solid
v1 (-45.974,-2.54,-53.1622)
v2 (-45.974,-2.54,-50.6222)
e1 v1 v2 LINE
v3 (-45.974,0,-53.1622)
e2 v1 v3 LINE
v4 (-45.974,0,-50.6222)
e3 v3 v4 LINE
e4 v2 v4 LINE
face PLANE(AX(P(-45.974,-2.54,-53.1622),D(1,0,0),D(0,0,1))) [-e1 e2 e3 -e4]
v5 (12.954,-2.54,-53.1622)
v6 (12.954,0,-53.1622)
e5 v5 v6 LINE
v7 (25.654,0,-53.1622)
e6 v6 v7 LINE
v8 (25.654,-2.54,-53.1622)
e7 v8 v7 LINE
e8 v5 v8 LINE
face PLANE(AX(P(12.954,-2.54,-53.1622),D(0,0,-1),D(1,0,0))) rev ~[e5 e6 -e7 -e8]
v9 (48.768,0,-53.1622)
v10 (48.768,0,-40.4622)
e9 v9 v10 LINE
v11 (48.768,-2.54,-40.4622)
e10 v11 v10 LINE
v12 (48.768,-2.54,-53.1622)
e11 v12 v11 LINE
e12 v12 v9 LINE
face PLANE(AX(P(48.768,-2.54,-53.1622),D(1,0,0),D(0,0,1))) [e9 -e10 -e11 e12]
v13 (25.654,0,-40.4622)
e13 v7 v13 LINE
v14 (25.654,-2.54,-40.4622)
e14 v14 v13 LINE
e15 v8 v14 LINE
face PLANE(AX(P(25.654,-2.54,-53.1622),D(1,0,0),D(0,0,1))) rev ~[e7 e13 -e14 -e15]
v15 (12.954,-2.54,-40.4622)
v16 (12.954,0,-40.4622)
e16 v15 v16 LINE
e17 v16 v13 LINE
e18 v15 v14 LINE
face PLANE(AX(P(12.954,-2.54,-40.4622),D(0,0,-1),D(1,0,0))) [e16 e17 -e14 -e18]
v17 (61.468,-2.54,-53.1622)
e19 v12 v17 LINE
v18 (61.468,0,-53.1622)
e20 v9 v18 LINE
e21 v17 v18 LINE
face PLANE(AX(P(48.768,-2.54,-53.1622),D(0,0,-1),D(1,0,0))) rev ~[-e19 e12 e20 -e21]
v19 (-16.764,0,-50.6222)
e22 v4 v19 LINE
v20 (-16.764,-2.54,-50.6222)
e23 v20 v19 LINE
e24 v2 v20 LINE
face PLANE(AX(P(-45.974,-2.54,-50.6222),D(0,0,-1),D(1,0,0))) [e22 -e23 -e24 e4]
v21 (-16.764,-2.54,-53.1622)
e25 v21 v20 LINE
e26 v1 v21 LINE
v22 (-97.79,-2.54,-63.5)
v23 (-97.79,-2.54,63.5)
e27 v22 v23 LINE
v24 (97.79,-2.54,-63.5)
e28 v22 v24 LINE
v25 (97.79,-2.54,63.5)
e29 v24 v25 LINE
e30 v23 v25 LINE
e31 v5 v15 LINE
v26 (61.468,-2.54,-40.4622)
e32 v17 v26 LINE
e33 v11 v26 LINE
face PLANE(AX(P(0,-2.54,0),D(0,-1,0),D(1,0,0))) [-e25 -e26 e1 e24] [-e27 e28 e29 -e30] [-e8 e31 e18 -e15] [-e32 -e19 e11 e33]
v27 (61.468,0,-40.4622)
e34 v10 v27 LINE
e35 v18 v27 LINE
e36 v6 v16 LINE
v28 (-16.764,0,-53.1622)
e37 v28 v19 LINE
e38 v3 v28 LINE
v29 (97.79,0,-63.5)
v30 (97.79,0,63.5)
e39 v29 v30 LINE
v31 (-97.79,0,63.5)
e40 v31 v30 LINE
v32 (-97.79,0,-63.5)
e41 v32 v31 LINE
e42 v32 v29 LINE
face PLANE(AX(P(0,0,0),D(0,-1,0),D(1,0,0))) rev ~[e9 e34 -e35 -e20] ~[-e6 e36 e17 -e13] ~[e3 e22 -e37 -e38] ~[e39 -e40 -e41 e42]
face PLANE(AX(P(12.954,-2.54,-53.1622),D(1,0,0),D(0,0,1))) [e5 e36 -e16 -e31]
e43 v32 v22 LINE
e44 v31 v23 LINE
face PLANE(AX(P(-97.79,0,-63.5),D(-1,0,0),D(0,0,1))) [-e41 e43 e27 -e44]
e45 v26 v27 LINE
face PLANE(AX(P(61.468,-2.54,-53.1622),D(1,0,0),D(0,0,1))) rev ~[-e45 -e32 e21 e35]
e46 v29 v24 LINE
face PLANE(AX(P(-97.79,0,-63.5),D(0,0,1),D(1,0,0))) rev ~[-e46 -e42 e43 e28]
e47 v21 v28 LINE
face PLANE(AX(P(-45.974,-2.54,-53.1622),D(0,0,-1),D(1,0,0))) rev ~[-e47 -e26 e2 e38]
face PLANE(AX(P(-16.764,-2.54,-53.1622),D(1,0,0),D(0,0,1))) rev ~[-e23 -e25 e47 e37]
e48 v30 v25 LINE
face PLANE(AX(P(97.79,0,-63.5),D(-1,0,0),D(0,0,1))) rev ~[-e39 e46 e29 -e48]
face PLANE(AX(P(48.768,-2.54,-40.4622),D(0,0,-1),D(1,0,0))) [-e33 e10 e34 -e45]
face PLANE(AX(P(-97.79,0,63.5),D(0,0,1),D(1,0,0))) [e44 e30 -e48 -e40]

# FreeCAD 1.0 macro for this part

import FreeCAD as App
import Part
import Sketcher
Q = App.Units.Quantity


def add_polygon(sketch, points):
    """Adds a closed chain of lines whose ends are joined by coincident constraints."""
    first, n = sketch.GeometryCount, len(points)
    for a, b in zip(points, points[1:] + points[:1]):
        sketch.addGeometry(Part.LineSegment(App.Vector(*a, 0), App.Vector(*b, 0)), False)
    for i in range(n):
        sketch.addConstraint(Sketcher.Constraint("Coincident", first + i, 2, first + (i + 1) % n, 1))

doc = App.newDocument("Part")
params = doc.addObject("Spreadsheet::Sheet", "Params")
for row, (alias, value) in enumerate([
    ("sketch1_height", "5 in"),
    ("sketch1_width", "7.7 in"),
    ("pad1_length", "0.1 in"),
    ("sketch2_width", "0.5 in"),
    ("sketch2_height", "0.1 in"),
    ("sketch2_width2", "1.15 in"),
    ("pocket1_length", "0.1 in"),
], start=1):
    params.set(f"A{row}", alias)
    params.set(f"B{row}", "=" + value)
    params.setAlias(f"B{row}", alias)

body = doc.addObject("PartDesign::Body", "Body")

# Sketch on XZ plane
sketch1 = body.newObject("Sketcher::SketchObject", "Sketch")
sketch1.AttachmentSupport = (doc.getObject("XZ_Plane"), [""])
sketch1.MapMode = "FlatFace"
add_polygon(sketch1, [(-98, 64), (-98, -64), (98, -64), (98, 64)])  # lines 0-3
sketch1.addConstraint([
    Sketcher.Constraint("Vertical", 0),
    Sketcher.Constraint("Horizontal", 1),
    Sketcher.Constraint("Vertical", 2),
    Sketcher.Constraint("Horizontal", 3),
    Sketcher.Constraint("Symmetric", 0, 2, 2, 2, -1, 1),
    Sketcher.Constraint("DistanceY", 0, 2, 0, 1, Q("5 in")),
    Sketcher.Constraint("DistanceX", 1, 1, 1, 2, Q("7.7 in")),
])
sketch1.setExpression("Constraints[9]", "Params.sketch1_height")
sketch1.setExpression("Constraints[10]", "Params.sketch1_width")
pad1 = body.newObject("PartDesign::Pad", "Pad")
pad1.Profile = sketch1
pad1.setExpression("Length", "Params.pad1_length")

# Sketch on XZ plane
sketch2 = body.newObject("Sketcher::SketchObject", "Sketch001")
sketch2.AttachmentSupport = (doc.getObject("XZ_Plane"), [""])
sketch2.MapMode = "FlatFace"
sketch2.AttachmentOffset = App.Placement(App.Vector(0, 0, 0.1 * 25.4), App.Rotation())
add_polygon(sketch2, [(-46, -50.6), (-46, -53.2), (-16.8, -53.2), (-16.8, -50.6)])  # lines 0-3
add_polygon(sketch2, [(13, -40.5), (13, -53.2), (25.7, -53.2), (25.7, -40.5)])  # lines 4-7
add_polygon(sketch2, [(48.8, -40.5), (48.8, -53.2), (61.5, -53.2), (61.5, -40.5)])  # lines 8-11
sketch2.addConstraint([
    Sketcher.Constraint("Vertical", 0),
    Sketcher.Constraint("Horizontal", 1),
    Sketcher.Constraint("Vertical", 2),
    Sketcher.Constraint("Horizontal", 3),
    Sketcher.Constraint("Vertical", 4),
    Sketcher.Constraint("Horizontal", 5),
    Sketcher.Constraint("Vertical", 6),
    Sketcher.Constraint("Horizontal", 7),
    Sketcher.Constraint("Vertical", 8),
    Sketcher.Constraint("Horizontal", 9),
    Sketcher.Constraint("Vertical", 10),
    Sketcher.Constraint("Horizontal", 11),
    Sketcher.Constraint("Horizontal", 1, 2, 4, 2),
    Sketcher.Constraint("Horizontal", 5, 2, 8, 2),
    Sketcher.Constraint("Horizontal", 7, 2, 10, 2),
    Sketcher.Constraint("Equal", 7, 9),
    Sketcher.Constraint("Equal", 11, 4),
    Sketcher.Constraint("DistanceX", 5, 1, 5, 2, Q("0.5 in")),
    Sketcher.Constraint("DistanceY", 0, 2, 0, 1, Q("0.1 in")),
    Sketcher.Constraint("DistanceX", 1, 1, 1, 2, Q("1.15 in")),
    Sketcher.Constraint("DistanceX", 0, 2, -1, 1, Q("1.81 in")),
    Sketcher.Constraint("DistanceX", -1, 1, 4, 2, Q("0.51 in")),
    Sketcher.Constraint("DistanceX", -1, 1, 8, 2, Q("1.92 in")),
    Sketcher.Constraint("DistanceY", 0, 2, -1, 1, Q("2.093 in")),
])
sketch2.setExpression("Constraints[29]", "Params.sketch2_width")
sketch2.setExpression("Constraints[30]", "Params.sketch2_height")
sketch2.setExpression("Constraints[31]", "Params.sketch2_width2")
pocket1 = body.newObject("PartDesign::Pocket", "Pocket")
pocket1.Profile = sketch2
pocket1.setExpression("Length", "Params.pocket1_length")

doc.recompute()
